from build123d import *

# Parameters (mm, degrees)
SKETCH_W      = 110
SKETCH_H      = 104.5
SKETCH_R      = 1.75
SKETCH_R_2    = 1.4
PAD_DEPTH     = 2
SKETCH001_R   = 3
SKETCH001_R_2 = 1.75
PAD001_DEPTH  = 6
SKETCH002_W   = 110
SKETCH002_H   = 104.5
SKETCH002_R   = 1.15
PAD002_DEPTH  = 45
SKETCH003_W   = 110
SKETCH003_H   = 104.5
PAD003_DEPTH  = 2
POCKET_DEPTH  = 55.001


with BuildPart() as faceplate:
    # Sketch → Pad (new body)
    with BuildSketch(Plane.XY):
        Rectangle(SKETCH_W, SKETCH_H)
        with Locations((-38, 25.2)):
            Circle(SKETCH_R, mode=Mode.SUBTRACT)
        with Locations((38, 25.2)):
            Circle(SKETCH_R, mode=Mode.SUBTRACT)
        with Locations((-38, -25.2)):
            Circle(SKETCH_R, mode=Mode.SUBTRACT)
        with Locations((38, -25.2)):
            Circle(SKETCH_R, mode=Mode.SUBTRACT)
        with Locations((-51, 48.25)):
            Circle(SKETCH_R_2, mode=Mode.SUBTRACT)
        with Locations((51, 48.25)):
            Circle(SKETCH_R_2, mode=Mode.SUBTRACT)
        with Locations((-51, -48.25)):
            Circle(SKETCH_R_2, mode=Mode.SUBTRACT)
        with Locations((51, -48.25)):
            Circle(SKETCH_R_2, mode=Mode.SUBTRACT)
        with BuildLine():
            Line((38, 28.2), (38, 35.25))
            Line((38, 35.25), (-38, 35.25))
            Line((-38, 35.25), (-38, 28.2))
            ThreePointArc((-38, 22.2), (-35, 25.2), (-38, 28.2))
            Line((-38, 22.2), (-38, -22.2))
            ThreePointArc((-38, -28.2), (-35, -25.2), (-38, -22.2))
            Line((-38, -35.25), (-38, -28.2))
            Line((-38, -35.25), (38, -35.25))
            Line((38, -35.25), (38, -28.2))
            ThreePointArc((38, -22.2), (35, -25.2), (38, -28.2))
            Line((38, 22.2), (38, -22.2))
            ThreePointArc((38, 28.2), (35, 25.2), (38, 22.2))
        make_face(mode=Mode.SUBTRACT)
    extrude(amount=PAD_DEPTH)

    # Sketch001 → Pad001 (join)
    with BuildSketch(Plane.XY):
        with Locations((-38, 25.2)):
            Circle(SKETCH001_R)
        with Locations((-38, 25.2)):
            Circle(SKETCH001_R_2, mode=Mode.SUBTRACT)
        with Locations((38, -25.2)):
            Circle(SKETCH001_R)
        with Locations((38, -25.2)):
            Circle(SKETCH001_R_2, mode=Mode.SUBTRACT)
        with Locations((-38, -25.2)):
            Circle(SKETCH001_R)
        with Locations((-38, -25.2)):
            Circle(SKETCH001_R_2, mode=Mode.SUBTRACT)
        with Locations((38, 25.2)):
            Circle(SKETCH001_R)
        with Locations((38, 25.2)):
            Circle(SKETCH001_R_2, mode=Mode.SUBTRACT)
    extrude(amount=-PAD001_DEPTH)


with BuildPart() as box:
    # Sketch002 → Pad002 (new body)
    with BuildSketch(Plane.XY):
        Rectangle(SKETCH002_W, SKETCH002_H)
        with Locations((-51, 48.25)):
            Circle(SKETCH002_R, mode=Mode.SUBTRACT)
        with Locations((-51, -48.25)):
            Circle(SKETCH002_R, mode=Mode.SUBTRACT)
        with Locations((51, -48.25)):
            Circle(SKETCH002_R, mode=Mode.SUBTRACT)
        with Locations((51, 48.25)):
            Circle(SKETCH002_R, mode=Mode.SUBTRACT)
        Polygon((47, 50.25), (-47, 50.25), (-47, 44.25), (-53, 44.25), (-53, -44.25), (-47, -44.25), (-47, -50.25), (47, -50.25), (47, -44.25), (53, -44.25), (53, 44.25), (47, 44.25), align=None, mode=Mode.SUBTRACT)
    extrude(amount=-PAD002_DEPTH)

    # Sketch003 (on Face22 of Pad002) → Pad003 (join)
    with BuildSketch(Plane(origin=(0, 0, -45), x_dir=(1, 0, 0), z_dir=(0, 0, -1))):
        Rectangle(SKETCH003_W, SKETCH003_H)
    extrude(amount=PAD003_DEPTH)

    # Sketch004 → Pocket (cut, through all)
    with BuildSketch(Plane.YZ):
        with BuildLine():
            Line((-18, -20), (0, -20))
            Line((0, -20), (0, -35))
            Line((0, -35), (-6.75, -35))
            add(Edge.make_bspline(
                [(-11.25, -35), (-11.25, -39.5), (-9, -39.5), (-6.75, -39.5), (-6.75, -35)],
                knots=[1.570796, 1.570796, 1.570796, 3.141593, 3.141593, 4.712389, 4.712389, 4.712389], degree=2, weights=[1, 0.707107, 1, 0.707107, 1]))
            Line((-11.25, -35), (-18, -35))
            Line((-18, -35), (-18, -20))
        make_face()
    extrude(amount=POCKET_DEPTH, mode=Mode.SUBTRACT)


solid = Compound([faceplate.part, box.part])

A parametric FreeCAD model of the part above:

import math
import FreeCAD as App
import Part
import Sketcher

V = App.Vector

doc = App.newDocument("Part")
body = doc.addObject("PartDesign::Body", "Body")

# Sketch on XY plane
sketch1 = body.newObject("Sketcher::SketchObject", "Sketch")
sketch1.AttachmentSupport = (doc.getObject("XY_Plane"), [""])
sketch1.MapMode = "FlatFace"
sketch1.addGeometry(Part.LineSegment(V(-55, 52.25, 0), V(-55, -52.25, 0)), False)
sketch1.addGeometry(Part.LineSegment(V(-55, -52.25, 0), V(55, -52.25, 0)), False)
sketch1.addGeometry(Part.LineSegment(V(55, -52.25, 0), V(55, 52.25, 0)), False)
sketch1.addGeometry(Part.LineSegment(V(55, 52.25, 0), V(-55, 52.25, 0)), False)
sketch1.addGeometry(Part.Circle(V(-51, -48.25, 0), V(0, 0, 1), 1.4), False)
sketch1.addGeometry(Part.Circle(V(-38, -25.2, 0), V(0, 0, 1), 1.75), False)
sketch1.addGeometry(Part.Circle(V(51, -48.25, 0), V(0, 0, 1), 1.4), False)
sketch1.addGeometry(Part.Circle(V(38, -25.2, 0), V(0, 0, 1), 1.75), False)
sketch1.addGeometry(Part.Circle(V(-38, 25.2, 0), V(0, 0, 1), 1.75), False)
sketch1.addGeometry(Part.Circle(V(-51, 48.25, 0), V(0, 0, 1), 1.4), False)
sketch1.addGeometry(Part.LineSegment(V(38, 35.25, 0), V(38, 28.2, 0)), False)
sketch1.addGeometry(Part.ArcOfCircle(Part.Circle(V(38, 25.2, 0), V(0, 0, 1), 3), math.radians(90), math.radians(270)), False)
sketch1.addGeometry(Part.LineSegment(V(38, 22.2, 0), V(38, -22.2, 0)), False)
sketch1.addGeometry(Part.ArcOfCircle(Part.Circle(V(38, -25.2, 0), V(0, 0, 1), 3), math.radians(90), math.radians(270)), False)
sketch1.addGeometry(Part.LineSegment(V(38, -28.2, 0), V(38, -35.25, 0)), False)
sketch1.addGeometry(Part.LineSegment(V(38, -35.25, 0), V(-38, -35.25, 0)), False)
sketch1.addGeometry(Part.LineSegment(V(-38, -35.25, 0), V(-38, -28.2, 0)), False)
sketch1.addGeometry(Part.ArcOfCircle(Part.Circle(V(-38, -25.2, 0), V(0, 0, 1), 3), math.radians(-90), math.radians(90)), False)
sketch1.addGeometry(Part.LineSegment(V(-38, -22.2, 0), V(-38, 22.2, 0)), False)
sketch1.addGeometry(Part.ArcOfCircle(Part.Circle(V(-38, 25.2, 0), V(0, 0, 1), 3), math.radians(-90), math.radians(90)), False)
sketch1.addGeometry(Part.LineSegment(V(-38, 28.2, 0), V(-38, 35.25, 0)), False)
sketch1.addGeometry(Part.LineSegment(V(-38, 35.25, 0), V(38, 35.25, 0)), False)
sketch1.addGeometry(Part.Circle(V(38, 25.2, 0), V(0, 0, 1), 1.75), False)
sketch1.addGeometry(Part.Circle(V(51, 48.25, 0), V(0, 0, 1), 1.4), False)
sketch1.addConstraint(Sketcher.Constraint("Coincident", 0, 2, 1, 1))
sketch1.addConstraint(Sketcher.Constraint("Coincident", 1, 2, 2, 1))
sketch1.addConstraint(Sketcher.Constraint("Coincident", 2, 2, 3, 1))
sketch1.addConstraint(Sketcher.Constraint("Coincident", 3, 2, 0, 1))
sketch1.addConstraint(Sketcher.Constraint("Coincident", 10, 2, 11, 1))
sketch1.addConstraint(Sketcher.Constraint("Coincident", 11, 2, 12, 1))
sketch1.addConstraint(Sketcher.Constraint("Coincident", 12, 2, 13, 1))
sketch1.addConstraint(Sketcher.Constraint("Coincident", 13, 2, 14, 1))
sketch1.addConstraint(Sketcher.Constraint("Coincident", 14, 2, 15, 1))
sketch1.addConstraint(Sketcher.Constraint("Coincident", 15, 2, 16, 1))
sketch1.addConstraint(Sketcher.Constraint("Coincident", 16, 2, 17, 1))
sketch1.addConstraint(Sketcher.Constraint("Coincident", 17, 2, 18, 1))
sketch1.addConstraint(Sketcher.Constraint("Coincident", 18, 2, 19, 1))
sketch1.addConstraint(Sketcher.Constraint("Coincident", 19, 2, 20, 1))
sketch1.addConstraint(Sketcher.Constraint("Coincident", 20, 2, 21, 1))
sketch1.addConstraint(Sketcher.Constraint("Coincident", 21, 2, 10, 1))
sketch1.addConstraint(Sketcher.Constraint("Vertical", 0))
sketch1.addConstraint(Sketcher.Constraint("Horizontal", 1))
sketch1.addConstraint(Sketcher.Constraint("Vertical", 2))
sketch1.addConstraint(Sketcher.Constraint("Horizontal", 3))
sketch1.addConstraint(Sketcher.Constraint("Vertical", 10))
sketch1.addConstraint(Sketcher.Constraint("Vertical", 12))
sketch1.addConstraint(Sketcher.Constraint("Vertical", 14))
sketch1.addConstraint(Sketcher.Constraint("Horizontal", 15))
sketch1.addConstraint(Sketcher.Constraint("Vertical", 16))
sketch1.addConstraint(Sketcher.Constraint("Vertical", 18))
sketch1.addConstraint(Sketcher.Constraint("Vertical", 20))
sketch1.addConstraint(Sketcher.Constraint("Horizontal", 21))
sketch1.addConstraint(Sketcher.Constraint("Coincident", 13, 3, 7, 3))
sketch1.addConstraint(Sketcher.Constraint("Coincident", 17, 3, 5, 3))
sketch1.addConstraint(Sketcher.Constraint("Coincident", 19, 3, 8, 3))
sketch1.addConstraint(Sketcher.Constraint("Coincident", 22, 3, 11, 3))
sketch1.addConstraint(Sketcher.Constraint("Equal", 4, 6))
sketch1.addConstraint(Sketcher.Constraint("Equal", 5, 7))
sketch1.addConstraint(Sketcher.Constraint("Equal", 7, 8))
sketch1.addConstraint(Sketcher.Constraint("Equal", 6, 9))
sketch1.addConstraint(Sketcher.Constraint("Equal", 11, 13))
sketch1.addConstraint(Sketcher.Constraint("Equal", 13, 17))
sketch1.addConstraint(Sketcher.Constraint("Equal", 17, 19))
sketch1.addConstraint(Sketcher.Constraint("Equal", 8, 22))
sketch1.addConstraint(Sketcher.Constraint("Equal", 9, 23))
sketch1.addConstraint(Sketcher.Constraint("Symmetric", 7, 3, 8, 3, -1, 1))
sketch1.addConstraint(Sketcher.Constraint("Symmetric", 6, 3, 9, 3, -1, 1))
sketch1.addConstraint(Sketcher.Constraint("Symmetric", 5, 3, 11, 3, -1, 1))
sketch1.addConstraint(Sketcher.Constraint("Symmetric", 4, 3, 23, 3, -1, 1))
sketch1.addConstraint(Sketcher.Constraint("Symmetric", 0, 2, 2, 2, -1, 1))
sketch1.addConstraint(Sketcher.Constraint("Symmetric", 14, 2, 20, 2, -1, 1))
sketch1.addConstraint(Sketcher.Constraint("Symmetric", 4, 3, 6, 3, -2))
sketch1.addConstraint(Sketcher.Constraint("Symmetric", 5, 3, 7, 3, -2))
sketch1.addConstraint(Sketcher.Constraint("Vertical", 22, 3, 10, 2))
sketch1.addConstraint(Sketcher.Constraint("Vertical", 10, 2, 11, 2))
sketch1.addConstraint(Sketcher.Constraint("Vertical", 12, 2, 13, 2))
sketch1.addConstraint(Sketcher.Constraint("Vertical", 19, 3, 15, 2))
sketch1.addConstraint(Sketcher.Constraint("Vertical", 16, 2, 17, 2))
sketch1.addConstraint(Sketcher.Constraint("Radius", 11, 3.0))
sketch1.addConstraint(Sketcher.Constraint("Diameter", 4, 2.8))
sketch1.addConstraint(Sketcher.Constraint("Diameter", 5, 3.5))
sketch1.addConstraint(Sketcher.Constraint("DistanceX", 1, 1, 1, 2, 110.0))
sketch1.addConstraint(Sketcher.Constraint("DistanceX", 15, 2, 15, 1, 76.0))
sketch1.addConstraint(Sketcher.Constraint("DistanceY", 0, 2, 0, 1, 104.5))
sketch1.addConstraint(Sketcher.Constraint("DistanceY", 12, 2, 12, 1, 44.4))
sketch1.addConstraint(Sketcher.Constraint("DistanceX", 4, 3, -1, 1, 51.0))
sketch1.addConstraint(Sketcher.Constraint("DistanceY", 0, 2, 4, 3, 4.0))
sketch1.addConstraint(Sketcher.Constraint("DistanceY", 6, 3, 14, 2, 13.0))
pad1 = body.newObject("PartDesign::Pad", "Pad")
pad1.Profile = sketch1
pad1.Length = 2

# Sketch on XY plane
sketch2 = body.newObject("Sketcher::SketchObject", "Sketch001")
sketch2.AttachmentSupport = (doc.getObject("XY_Plane"), [""])
sketch2.MapMode = "FlatFace"
sketch2.addGeometry(Part.Circle(V(-38, 25.2, 0), V(0, 0, 1), 3), False)
sketch2.addGeometry(Part.Circle(V(-38, 25.2, 0), V(0, 0, 1), 1.75), False)
sketch2.addGeometry(Part.Circle(V(38, -25.2, 0), V(0, 0, 1), 3), False)
sketch2.addGeometry(Part.Circle(V(38, -25.2, 0), V(0, 0, 1), 1.75), False)
sketch2.addGeometry(Part.Circle(V(-38, -25.2, 0), V(0, 0, 1), 3), False)
sketch2.addGeometry(Part.Circle(V(-38, -25.2, 0), V(0, 0, 1), 1.75), False)
sketch2.addGeometry(Part.Circle(V(38, 25.2, 0), V(0, 0, 1), 3), False)
sketch2.addGeometry(Part.Circle(V(38, 25.2, 0), V(0, 0, 1), 1.75), False)
sketch2.addConstraint(Sketcher.Constraint("Coincident", 1, 3, 0, 3))
sketch2.addConstraint(Sketcher.Constraint("Coincident", 3, 3, 2, 3))
sketch2.addConstraint(Sketcher.Constraint("Coincident", 5, 3, 4, 3))
sketch2.addConstraint(Sketcher.Constraint("Coincident", 7, 3, 6, 3))
sketch2.addConstraint(Sketcher.Constraint("Equal", 0, 2))
sketch2.addConstraint(Sketcher.Constraint("Equal", 1, 3))
sketch2.addConstraint(Sketcher.Constraint("Equal", 2, 4))
sketch2.addConstraint(Sketcher.Constraint("Equal", 3, 5))
sketch2.addConstraint(Sketcher.Constraint("Equal", 4, 6))
sketch2.addConstraint(Sketcher.Constraint("Equal", 5, 7))
sketch2.addConstraint(Sketcher.Constraint("Symmetric", 0, 3, 2, 3, -1, 1))
sketch2.addConstraint(Sketcher.Constraint("Symmetric", 4, 3, 6, 3, -1, 1))
sketch2.addConstraint(Sketcher.Constraint("Symmetric", 2, 3, 4, 3, -2))
sketch2.addConstraint(Sketcher.Constraint("Diameter", 0, 6.0))
sketch2.addConstraint(Sketcher.Constraint("Diameter", 1, 3.5))
sketch2.addConstraint(Sketcher.Constraint("DistanceX", 0, 3, -1, 1, 38.0))
sketch2.addConstraint(Sketcher.Constraint("DistanceY", -1, 1, 0, 3, 25.2))
pad2 = body.newObject("PartDesign::Pad", "Pad001")
pad2.Profile = sketch2
pad2.Length = 6
pad2.Reversed = True
body2 = doc.addObject("PartDesign::Body", "Body001")

# Sketch on XY plane
sketch3 = body2.newObject("Sketcher::SketchObject", "Sketch002")
sketch3.AttachmentSupport = (doc.getObject("XY_Plane001"), [""])
sketch3.MapMode = "FlatFace"
sketch3.addGeometry(Part.LineSegment(V(-55, 52.25, 0), V(-55, -52.25, 0)), False)
sketch3.addGeometry(Part.LineSegment(V(-55, -52.25, 0), V(55, -52.25, 0)), False)
sketch3.addGeometry(Part.LineSegment(V(55, -52.25, 0), V(55, 52.25, 0)), False)
sketch3.addGeometry(Part.LineSegment(V(55, 52.25, 0), V(-55, 52.25, 0)), False)
sketch3.addGeometry(Part.Circle(V(-51, -48.25, 0), V(0, 0, 1), 1.15), False)
sketch3.addGeometry(Part.Circle(V(51, -48.25, 0), V(0, 0, 1), 1.15), False)
sketch3.addGeometry(Part.Circle(V(-51, 48.25, 0), V(0, 0, 1), 1.15), False)
sketch3.addGeometry(Part.LineSegment(V(-47, 50.25, 0), V(47, 50.25, 0)), False)
sketch3.addGeometry(Part.LineSegment(V(47, 50.25, 0), V(47, 44.25, 0)), False)
sketch3.addGeometry(Part.LineSegment(V(47, 44.25, 0), V(53, 44.25, 0)), False)
sketch3.addGeometry(Part.LineSegment(V(53, 44.25, 0), V(53, -44.25, 0)), False)
sketch3.addGeometry(Part.LineSegment(V(53, -44.25, 0), V(47, -44.25, 0)), False)
sketch3.addGeometry(Part.LineSegment(V(47, -44.25, 0), V(47, -50.25, 0)), False)
sketch3.addGeometry(Part.LineSegment(V(47, -50.25, 0), V(-47, -50.25, 0)), False)
sketch3.addGeometry(Part.LineSegment(V(-47, -50.25, 0), V(-47, -44.25, 0)), False)
sketch3.addGeometry(Part.LineSegment(V(-47, -44.25, 0), V(-53, -44.25, 0)), False)
sketch3.addGeometry(Part.LineSegment(V(-53, -44.25, 0), V(-53, 44.25, 0)), False)
sketch3.addGeometry(Part.LineSegment(V(-53, 44.25, 0), V(-47, 44.25, 0)), False)
sketch3.addGeometry(Part.LineSegment(V(-47, 44.25, 0), V(-47, 50.25, 0)), False)
sketch3.addGeometry(Part.Circle(V(51, 48.25, 0), V(0, 0, 1), 1.15), False)
sketch3.addConstraint(Sketcher.Constraint("Coincident", 0, 2, 1, 1))
sketch3.addConstraint(Sketcher.Constraint("Coincident", 1, 2, 2, 1))
sketch3.addConstraint(Sketcher.Constraint("Coincident", 2, 2, 3, 1))
sketch3.addConstraint(Sketcher.Constraint("Coincident", 3, 2, 0, 1))
sketch3.addConstraint(Sketcher.Constraint("Coincident", 7, 2, 8, 1))
sketch3.addConstraint(Sketcher.Constraint("Coincident", 8, 2, 9, 1))
sketch3.addConstraint(Sketcher.Constraint("Coincident", 9, 2, 10, 1))
sketch3.addConstraint(Sketcher.Constraint("Coincident", 10, 2, 11, 1))
sketch3.addConstraint(Sketcher.Constraint("Coincident", 11, 2, 12, 1))
sketch3.addConstraint(Sketcher.Constraint("Coincident", 12, 2, 13, 1))
sketch3.addConstraint(Sketcher.Constraint("Coincident", 13, 2, 14, 1))
sketch3.addConstraint(Sketcher.Constraint("Coincident", 14, 2, 15, 1))
sketch3.addConstraint(Sketcher.Constraint("Coincident", 15, 2, 16, 1))
sketch3.addConstraint(Sketcher.Constraint("Coincident", 16, 2, 17, 1))
sketch3.addConstraint(Sketcher.Constraint("Coincident", 17, 2, 18, 1))
sketch3.addConstraint(Sketcher.Constraint("Coincident", 18, 2, 7, 1))
sketch3.addConstraint(Sketcher.Constraint("Vertical", 0))
sketch3.addConstraint(Sketcher.Constraint("Horizontal", 1))
sketch3.addConstraint(Sketcher.Constraint("Vertical", 2))
sketch3.addConstraint(Sketcher.Constraint("Horizontal", 3))
sketch3.addConstraint(Sketcher.Constraint("Horizontal", 7))
sketch3.addConstraint(Sketcher.Constraint("Vertical", 8))
sketch3.addConstraint(Sketcher.Constraint("Horizontal", 9))
sketch3.addConstraint(Sketcher.Constraint("Vertical", 10))
sketch3.addConstraint(Sketcher.Constraint("Horizontal", 11))
sketch3.addConstraint(Sketcher.Constraint("Vertical", 12))
sketch3.addConstraint(Sketcher.Constraint("Horizontal", 13))
sketch3.addConstraint(Sketcher.Constraint("Vertical", 14))
sketch3.addConstraint(Sketcher.Constraint("Horizontal", 15))
sketch3.addConstraint(Sketcher.Constraint("Vertical", 16))
sketch3.addConstraint(Sketcher.Constraint("Horizontal", 17))
sketch3.addConstraint(Sketcher.Constraint("Vertical", 18))
sketch3.addConstraint(Sketcher.Constraint("Equal", 4, 5))
sketch3.addConstraint(Sketcher.Constraint("Equal", 5, 6))
sketch3.addConstraint(Sketcher.Constraint("Equal", 6, 19))
sketch3.addConstraint(Sketcher.Constraint("Symmetric", 5, 3, 6, 3, -1, 1))
sketch3.addConstraint(Sketcher.Constraint("Symmetric", 4, 3, 19, 3, -1, 1))
sketch3.addConstraint(Sketcher.Constraint("Symmetric", 0, 2, 2, 2, -1, 1))
sketch3.addConstraint(Sketcher.Constraint("Symmetric", 7, 2, 13, 2, -1, 1))
sketch3.addConstraint(Sketcher.Constraint("Symmetric", 9, 2, 15, 2, -1, 1))
sketch3.addConstraint(Sketcher.Constraint("Symmetric", 11, 2, 17, 2, -1, 1))
sketch3.addConstraint(Sketcher.Constraint("Symmetric", 4, 3, 5, 3, -2))
sketch3.addConstraint(Sketcher.Constraint("Symmetric", 11, 2, 14, 2, -2))
sketch3.addConstraint(Sketcher.Constraint("Equal", 17, 8))
sketch3.addConstraint(Sketcher.Constraint("Diameter", 4, 2.3))
sketch3.addConstraint(Sketcher.Constraint("DistanceX", 1, 1, 1, 2, 110.0))
sketch3.addConstraint(Sketcher.Constraint("DistanceX", 7, 1, 7, 2, 94.0))
sketch3.addConstraint(Sketcher.Constraint("DistanceX", 9, 1, 9, 2, 6.0))
sketch3.addConstraint(Sketcher.Constraint("DistanceY", 0, 2, 0, 1, 104.5))
sketch3.addConstraint(Sketcher.Constraint("DistanceY", 10, 2, 10, 1, 88.5))
sketch3.addConstraint(Sketcher.Constraint("DistanceX", 4, 3, -1, 1, 51.0))
sketch3.addConstraint(Sketcher.Constraint("DistanceY", 0, 2, 4, 3, 4.0))
pad3 = body2.newObject("PartDesign::Pad", "Pad002")
pad3.Profile = sketch3
pad3.Length = 45
pad3.Reversed = True

# Sketch on XY plane
sketch4 = body2.newObject("Sketcher::SketchObject", "Sketch003")
sketch4.AttachmentSupport = (doc.getObject("XY_Plane001"), [""])
sketch4.MapMode = "FlatFace"
sketch4.AttachmentOffset = App.Placement(V(0, 0, -45), App.Rotation())
sketch4.addGeometry(Part.LineSegment(V(-55, -52.25, 0), V(-55, 52.25, 0)), False)
sketch4.addGeometry(Part.LineSegment(V(-55, 52.25, 0), V(55, 52.25, 0)), False)
sketch4.addGeometry(Part.LineSegment(V(55, 52.25, 0), V(55, -52.25, 0)), False)
sketch4.addGeometry(Part.LineSegment(V(55, -52.25, 0), V(-55, -52.25, 0)), False)
sketch4.addConstraint(Sketcher.Constraint("Coincident", 0, 2, 1, 1))
sketch4.addConstraint(Sketcher.Constraint("Coincident", 1, 2, 2, 1))
sketch4.addConstraint(Sketcher.Constraint("Coincident", 2, 2, 3, 1))
sketch4.addConstraint(Sketcher.Constraint("Coincident", 3, 2, 0, 1))
sketch4.addConstraint(Sketcher.Constraint("Vertical", 0))
sketch4.addConstraint(Sketcher.Constraint("Horizontal", 1))
sketch4.addConstraint(Sketcher.Constraint("Vertical", 2))
sketch4.addConstraint(Sketcher.Constraint("Horizontal", 3))
sketch4.addConstraint(Sketcher.Constraint("Symmetric", 0, 2, 2, 2, -1, 1))
sketch4.addConstraint(Sketcher.Constraint("DistanceX", 1, 1, 1, 2, 110.0))
sketch4.addConstraint(Sketcher.Constraint("DistanceY", 0, 1, 0, 2, 104.5))
pad4 = body2.newObject("PartDesign::Pad", "Pad003")
pad4.Profile = sketch4
pad4.Length = 2
pad4.Reversed = True

# Sketch on YZ plane
sketch5 = body2.newObject("Sketcher::SketchObject", "Sketch004")
sketch5.AttachmentSupport = (doc.getObject("YZ_Plane001"), [""])
sketch5.MapMode = "FlatFace"
sketch5.addGeometry(Part.LineSegment(V(0, -20, 0), V(-18, -20, 0)), False)
sketch5.addGeometry(Part.LineSegment(V(-18, -20, 0), V(-18, -35, 0)), False)
sketch5.addGeometry(Part.LineSegment(V(-18, -35, 0), V(-11.25, -35, 0)), False)
sketch5.addGeometry(Part.BSplineCurve([V(-11.25, -35, 0), V(-11.25, -39.5, 0), V(-9, -39.5, 0), V(-6.75, -39.5, 0), V(-6.75, -35, 0)], [3, 2, 3], [1.570796, 3.141593, 4.712389], False, 2, [1, 0.707107, 1, 0.707107, 1], False), False)
sketch5.addGeometry(Part.LineSegment(V(-6.75, -35, 0), V(0, -35, 0)), False)
sketch5.addGeometry(Part.LineSegment(V(0, -35, 0), V(0, -20, 0)), False)
sketch5.addConstraint(Sketcher.Constraint("Block", 3))
sketch5.addConstraint(Sketcher.Constraint("Coincident", 0, 2, 1, 1))
sketch5.addConstraint(Sketcher.Constraint("Coincident", 1, 2, 2, 1))
sketch5.addConstraint(Sketcher.Constraint("Coincident", 2, 2, 3, 1))
sketch5.addConstraint(Sketcher.Constraint("Coincident", 3, 2, 4, 1))
sketch5.addConstraint(Sketcher.Constraint("Coincident", 4, 2, 5, 1))
sketch5.addConstraint(Sketcher.Constraint("Coincident", 5, 2, 0, 1))
sketch5.addConstraint(Sketcher.Constraint("Horizontal", 0))
sketch5.addConstraint(Sketcher.Constraint("Vertical", 1))
sketch5.addConstraint(Sketcher.Constraint("Horizontal", 2))
sketch5.addConstraint(Sketcher.Constraint("Horizontal", 4))
sketch5.addConstraint(Sketcher.Constraint("Vertical", 5))
sketch5.addConstraint(Sketcher.Constraint("PointOnObject", 4, 2, -2))
sketch5.addConstraint(Sketcher.Constraint("DistanceX", 0, 2, 0, 1, 18.0))
sketch5.addConstraint(Sketcher.Constraint("DistanceY", 1, 2, 1, 1, 15.0))
pocket1 = body2.newObject("PartDesign::Pocket", "Pocket")
pocket1.Profile = sketch5
pocket1.Type = "ThroughAll"
pocket1.Reversed = True

doc.recompute()
